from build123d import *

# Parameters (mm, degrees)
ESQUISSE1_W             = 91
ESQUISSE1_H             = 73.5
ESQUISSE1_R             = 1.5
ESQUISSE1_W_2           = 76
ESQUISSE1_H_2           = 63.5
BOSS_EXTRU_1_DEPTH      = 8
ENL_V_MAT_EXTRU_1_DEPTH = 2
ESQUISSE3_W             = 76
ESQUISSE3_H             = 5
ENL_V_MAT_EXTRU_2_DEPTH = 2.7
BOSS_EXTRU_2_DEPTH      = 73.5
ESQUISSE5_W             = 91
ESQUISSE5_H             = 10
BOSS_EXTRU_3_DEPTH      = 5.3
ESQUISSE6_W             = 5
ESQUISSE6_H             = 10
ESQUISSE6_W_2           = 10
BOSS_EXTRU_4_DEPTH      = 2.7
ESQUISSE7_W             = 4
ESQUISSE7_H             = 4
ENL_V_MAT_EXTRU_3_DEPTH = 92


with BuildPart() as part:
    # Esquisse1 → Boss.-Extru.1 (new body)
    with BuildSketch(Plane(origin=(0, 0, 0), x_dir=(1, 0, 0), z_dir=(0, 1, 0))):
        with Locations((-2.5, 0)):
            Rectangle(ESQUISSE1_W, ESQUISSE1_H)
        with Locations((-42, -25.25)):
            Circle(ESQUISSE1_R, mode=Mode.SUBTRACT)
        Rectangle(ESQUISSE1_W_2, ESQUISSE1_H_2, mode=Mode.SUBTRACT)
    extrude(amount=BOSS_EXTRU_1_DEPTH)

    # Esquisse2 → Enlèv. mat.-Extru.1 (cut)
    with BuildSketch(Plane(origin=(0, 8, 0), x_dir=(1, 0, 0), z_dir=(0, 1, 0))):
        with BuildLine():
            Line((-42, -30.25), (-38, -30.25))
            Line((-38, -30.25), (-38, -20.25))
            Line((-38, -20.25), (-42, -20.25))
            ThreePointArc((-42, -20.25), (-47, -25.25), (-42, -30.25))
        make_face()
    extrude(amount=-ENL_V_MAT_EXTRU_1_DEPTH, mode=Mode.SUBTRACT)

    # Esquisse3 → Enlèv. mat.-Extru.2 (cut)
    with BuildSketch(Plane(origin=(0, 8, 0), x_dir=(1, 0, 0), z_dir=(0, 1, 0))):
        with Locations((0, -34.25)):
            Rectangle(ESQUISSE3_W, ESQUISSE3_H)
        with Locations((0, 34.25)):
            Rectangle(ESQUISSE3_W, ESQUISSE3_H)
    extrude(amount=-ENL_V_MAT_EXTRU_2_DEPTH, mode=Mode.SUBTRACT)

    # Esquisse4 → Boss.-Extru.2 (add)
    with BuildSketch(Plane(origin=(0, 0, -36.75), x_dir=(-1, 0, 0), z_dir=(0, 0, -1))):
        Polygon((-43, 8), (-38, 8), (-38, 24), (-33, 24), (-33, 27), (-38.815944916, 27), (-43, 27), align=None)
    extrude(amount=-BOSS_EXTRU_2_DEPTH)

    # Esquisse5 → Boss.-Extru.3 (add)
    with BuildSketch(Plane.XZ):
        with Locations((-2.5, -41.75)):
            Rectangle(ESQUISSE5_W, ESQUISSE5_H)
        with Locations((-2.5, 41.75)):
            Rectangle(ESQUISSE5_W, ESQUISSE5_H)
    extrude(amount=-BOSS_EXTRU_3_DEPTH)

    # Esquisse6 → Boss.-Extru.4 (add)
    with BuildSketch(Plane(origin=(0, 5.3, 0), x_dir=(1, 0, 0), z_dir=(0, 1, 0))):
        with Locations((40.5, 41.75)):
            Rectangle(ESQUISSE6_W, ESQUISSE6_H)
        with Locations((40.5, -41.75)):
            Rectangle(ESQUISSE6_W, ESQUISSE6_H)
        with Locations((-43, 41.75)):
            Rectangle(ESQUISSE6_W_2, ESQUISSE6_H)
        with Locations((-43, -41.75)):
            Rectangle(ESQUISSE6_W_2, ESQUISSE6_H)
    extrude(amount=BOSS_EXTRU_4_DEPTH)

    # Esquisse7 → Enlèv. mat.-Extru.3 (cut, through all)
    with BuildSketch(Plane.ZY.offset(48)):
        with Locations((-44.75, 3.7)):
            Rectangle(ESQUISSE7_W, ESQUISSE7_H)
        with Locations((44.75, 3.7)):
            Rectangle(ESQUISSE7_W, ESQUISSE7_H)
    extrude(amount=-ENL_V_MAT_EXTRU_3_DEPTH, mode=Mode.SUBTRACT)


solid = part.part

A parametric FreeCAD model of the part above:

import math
import FreeCAD as App
import Part
import Sketcher

V = App.Vector
Q = App.Units.Quantity

doc = App.newDocument("Part")
body = doc.addObject("PartDesign::Body", "Body")

# Sketch on XZ plane
sketch1 = body.newObject("Sketcher::SketchObject", "Sketch")
sketch1.AttachmentSupport = (doc.getObject("XZ_Plane"), [""])
sketch1.MapMode = "FlatFace"
sketch1.addGeometry(Part.LineSegment(V(-48, -36.8, 0), V(-48, 36.8, 0)), False)
sketch1.addGeometry(Part.LineSegment(V(-48, 36.8, 0), V(43, 36.8, 0)), False)
sketch1.addGeometry(Part.LineSegment(V(43, 36.8, 0), V(43, -36.8, 0)), False)
sketch1.addGeometry(Part.LineSegment(V(43, -36.8, 0), V(-48, -36.8, 0)), False)
sketch1.addGeometry(Part.Circle(V(-42, 25.2, 0), V(0, 0, 1), 1.5), False)
sketch1.addGeometry(Part.LineSegment(V(38, 31.8, 0), V(-38, 31.8, 0)), False)
sketch1.addGeometry(Part.LineSegment(V(-38, 31.8, 0), V(-38, -31.8, 0)), False)
sketch1.addGeometry(Part.LineSegment(V(-38, -31.8, 0), V(38, -31.8, 0)), False)
sketch1.addGeometry(Part.LineSegment(V(38, -31.8, 0), V(38, 31.8, 0)), False)
sketch1.addConstraint(Sketcher.Constraint("Coincident", 0, 2, 1, 1))
sketch1.addConstraint(Sketcher.Constraint("Coincident", 1, 2, 2, 1))
sketch1.addConstraint(Sketcher.Constraint("Coincident", 2, 2, 3, 1))
sketch1.addConstraint(Sketcher.Constraint("Coincident", 3, 2, 0, 1))
sketch1.addConstraint(Sketcher.Constraint("Coincident", 5, 2, 6, 1))
sketch1.addConstraint(Sketcher.Constraint("Coincident", 6, 2, 7, 1))
sketch1.addConstraint(Sketcher.Constraint("Coincident", 7, 2, 8, 1))
sketch1.addConstraint(Sketcher.Constraint("Coincident", 8, 2, 5, 1))
sketch1.addConstraint(Sketcher.Constraint("Vertical", 0))
sketch1.addConstraint(Sketcher.Constraint("Horizontal", 1))
sketch1.addConstraint(Sketcher.Constraint("Vertical", 2))
sketch1.addConstraint(Sketcher.Constraint("Horizontal", 3))
sketch1.addConstraint(Sketcher.Constraint("Horizontal", 5))
sketch1.addConstraint(Sketcher.Constraint("Vertical", 6))
sketch1.addConstraint(Sketcher.Constraint("Horizontal", 7))
sketch1.addConstraint(Sketcher.Constraint("Vertical", 8))
sketch1.addConstraint(Sketcher.Constraint("Symmetric", 5, 2, 7, 2, -1, 1))
sketch1.addConstraint(Sketcher.Constraint("Diameter", 4, Q("3 mm")))
sketch1.addConstraint(Sketcher.Constraint("DistanceX", 1, 1, 1, 2, Q("91 mm")))
sketch1.addConstraint(Sketcher.Constraint("DistanceX", 5, 2, 5, 1, Q("76 mm")))
sketch1.addConstraint(Sketcher.Constraint("DistanceY", 0, 1, 0, 2, Q("73.5 mm")))
sketch1.addConstraint(Sketcher.Constraint("DistanceY", 6, 2, 6, 1, Q("63.5 mm")))
sketch1.addConstraint(Sketcher.Constraint("DistanceX", 4, 3, -1, 1, Q("42 mm")))
sketch1.addConstraint(Sketcher.Constraint("DistanceX", 0, 2, -1, 1, Q("48 mm")))
sketch1.addConstraint(Sketcher.Constraint("DistanceY", 2, 2, 4, 3, Q("62 mm")))
sketch1.addConstraint(Sketcher.Constraint("DistanceY", 5, 2, 0, 2, Q("5 mm")))
pad1 = body.newObject("PartDesign::Pad", "Pad")
pad1.Profile = sketch1
pad1.Length = 8
pad1.Reversed = True

# Sketch on XZ plane
sketch2 = body.newObject("Sketcher::SketchObject", "Sketch001")
sketch2.AttachmentSupport = (doc.getObject("XZ_Plane"), [""])
sketch2.MapMode = "FlatFace"
sketch2.AttachmentOffset = App.Placement(V(0, 0, -8), App.Rotation())
sketch2.addGeometry(Part.LineSegment(V(-42, 30.2, 0), V(-38, 30.2, 0)), False)
sketch2.addGeometry(Part.LineSegment(V(-38, 30.2, 0), V(-38, 20.2, 0)), False)
sketch2.addGeometry(Part.LineSegment(V(-38, 20.2, 0), V(-42, 20.2, 0)), False)
sketch2.addGeometry(Part.ArcOfCircle(Part.Circle(V(-42, 25.2, 0), V(0, 0, 1), 5), math.radians(90), math.radians(270)), False)
sketch2.addConstraint(Sketcher.Constraint("Coincident", 0, 2, 1, 1))
sketch2.addConstraint(Sketcher.Constraint("Coincident", 1, 2, 2, 1))
sketch2.addConstraint(Sketcher.Constraint("Tangent", 2, 2, 3, 2))
sketch2.addConstraint(Sketcher.Constraint("Tangent", 3, 1, 0, 1))
sketch2.addConstraint(Sketcher.Constraint("Horizontal", 0))
sketch2.addConstraint(Sketcher.Constraint("Vertical", 1))
sketch2.addConstraint(Sketcher.Constraint("Horizontal", 2))
sketch2.addConstraint(Sketcher.Constraint("Radius", 3, Q("5 mm")))
sketch2.addConstraint(Sketcher.Constraint("DistanceX", 0, 1, 0, 2, Q("4 mm")))
sketch2.addConstraint(Sketcher.Constraint("DistanceX", 3, 3, -1, 1, Q("42 mm")))
sketch2.addConstraint(Sketcher.Constraint("DistanceY", -1, 1, 3, 3, Q("25.25 mm")))
pocket1 = body.newObject("PartDesign::Pocket", "Pocket")
pocket1.Profile = sketch2
pocket1.Length = 2
pocket1.Reversed = True

# Sketch on XZ plane
sketch3 = body.newObject("Sketcher::SketchObject", "Sketch002")
sketch3.AttachmentSupport = (doc.getObject("XZ_Plane"), [""])
sketch3.MapMode = "FlatFace"
sketch3.AttachmentOffset = App.Placement(V(0, 0, -8), App.Rotation())
sketch3.addGeometry(Part.LineSegment(V(-38, 32, 0), V(-38, 37, 0)), False)
sketch3.addGeometry(Part.LineSegment(V(-38, 37, 0), V(38, 37, 0)), False)
sketch3.addGeometry(Part.LineSegment(V(38, 37, 0), V(38, 32, 0)), False)
sketch3.addGeometry(Part.LineSegment(V(38, 32, 0), V(-38, 32, 0)), False)
sketch3.addGeometry(Part.LineSegment(V(-38, -37, 0), V(-38, -32, 0)), False)
sketch3.addGeometry(Part.LineSegment(V(-38, -32, 0), V(38, -32, 0)), False)
sketch3.addGeometry(Part.LineSegment(V(38, -32, 0), V(38, -37, 0)), False)
sketch3.addGeometry(Part.LineSegment(V(38, -37, 0), V(-38, -37, 0)), False)
sketch3.addConstraint(Sketcher.Constraint("Coincident", 0, 2, 1, 1))
sketch3.addConstraint(Sketcher.Constraint("Coincident", 1, 2, 2, 1))
sketch3.addConstraint(Sketcher.Constraint("Coincident", 2, 2, 3, 1))
sketch3.addConstraint(Sketcher.Constraint("Coincident", 3, 2, 0, 1))
sketch3.addConstraint(Sketcher.Constraint("Coincident", 4, 2, 5, 1))
sketch3.addConstraint(Sketcher.Constraint("Coincident", 5, 2, 6, 1))
sketch3.addConstraint(Sketcher.Constraint("Coincident", 6, 2, 7, 1))
sketch3.addConstraint(Sketcher.Constraint("Coincident", 7, 2, 4, 1))
sketch3.addConstraint(Sketcher.Constraint("Vertical", 0))
sketch3.addConstraint(Sketcher.Constraint("Horizontal", 1))
sketch3.addConstraint(Sketcher.Constraint("Vertical", 2))
sketch3.addConstraint(Sketcher.Constraint("Horizontal", 3))
sketch3.addConstraint(Sketcher.Constraint("Vertical", 4))
sketch3.addConstraint(Sketcher.Constraint("Horizontal", 5))
sketch3.addConstraint(Sketcher.Constraint("Vertical", 6))
sketch3.addConstraint(Sketcher.Constraint("Horizontal", 7))
sketch3.addConstraint(Sketcher.Constraint("Symmetric", 2, 2, 4, 2, -1, 1))
sketch3.addConstraint(Sketcher.Constraint("Symmetric", 0, 2, 6, 2, -1, 1))
sketch3.addConstraint(Sketcher.Constraint("Vertical", 3, 2, 4, 2))
sketch3.addConstraint(Sketcher.Constraint("DistanceX", 1, 1, 1, 2, Q("76 mm")))
sketch3.addConstraint(Sketcher.Constraint("DistanceY", 0, 1, 0, 2, Q("5 mm")))
sketch3.addConstraint(Sketcher.Constraint("DistanceY", 4, 2, 3, 2, Q("63.5 mm")))
pocket2 = body.newObject("PartDesign::Pocket", "Pocket001")
pocket2.Profile = sketch3
pocket2.Length = 2.7
pocket2.Reversed = True

# Sketch on XY plane
sketch4 = body.newObject("Sketcher::SketchObject", "Sketch003")
sketch4.AttachmentSupport = (doc.getObject("XY_Plane"), [""])
sketch4.MapMode = "FlatFace"
sketch4.AttachmentOffset = App.Placement(V(0, 0, -36.75), App.Rotation())
sketch4.addGeometry(Part.LineSegment(V(43, 8, 0), V(38, 8, 0)), False)
sketch4.addGeometry(Part.LineSegment(V(38, 8, 0), V(38, 24, 0)), False)
sketch4.addGeometry(Part.LineSegment(V(38, 24, 0), V(33, 24, 0)), False)
sketch4.addGeometry(Part.LineSegment(V(33, 24, 0), V(33, 27, 0)), False)
sketch4.addGeometry(Part.LineSegment(V(33, 27, 0), V(43, 27, 0)), False)
sketch4.addGeometry(Part.LineSegment(V(43, 27, 0), V(43, 8, 0)), False)
sketch4.addConstraint(Sketcher.Constraint("Coincident", 0, 2, 1, 1))
sketch4.addConstraint(Sketcher.Constraint("Coincident", 1, 2, 2, 1))
sketch4.addConstraint(Sketcher.Constraint("Coincident", 2, 2, 3, 1))
sketch4.addConstraint(Sketcher.Constraint("Coincident", 3, 2, 4, 1))
sketch4.addConstraint(Sketcher.Constraint("Coincident", 4, 2, 5, 1))
sketch4.addConstraint(Sketcher.Constraint("Coincident", 5, 2, 0, 1))
sketch4.addConstraint(Sketcher.Constraint("Horizontal", 0))
sketch4.addConstraint(Sketcher.Constraint("Vertical", 1))
sketch4.addConstraint(Sketcher.Constraint("Horizontal", 2))
sketch4.addConstraint(Sketcher.Constraint("Vertical", 3))
sketch4.addConstraint(Sketcher.Constraint("Horizontal", 4))
sketch4.addConstraint(Sketcher.Constraint("Vertical", 5))
sketch4.addConstraint(Sketcher.Constraint("Equal", 0, 2))
sketch4.addConstraint(Sketcher.Constraint("DistanceX", 0, 2, 0, 1, Q("5 mm")))
sketch4.addConstraint(Sketcher.Constraint("DistanceY", 1, 1, 1, 2, Q("16 mm")))
sketch4.addConstraint(Sketcher.Constraint("DistanceY", 3, 1, 3, 2, Q("3 mm")))
sketch4.addConstraint(Sketcher.Constraint("DistanceX", -1, 1, 0, 2, Q("38 mm")))
sketch4.addConstraint(Sketcher.Constraint("DistanceY", -1, 1, 0, 2, Q("8 mm")))
pad2 = body.newObject("PartDesign::Pad", "Pad001")
pad2.Profile = sketch4
pad2.Length = 73.5

# Sketch on XZ plane
sketch5 = body.newObject("Sketcher::SketchObject", "Sketch004")
sketch5.AttachmentSupport = (doc.getObject("XZ_Plane"), [""])
sketch5.MapMode = "FlatFace"
sketch5.addGeometry(Part.LineSegment(V(-48, -37, 0), V(-48, -47, 0)), False)
sketch5.addGeometry(Part.LineSegment(V(-48, -47, 0), V(43, -47, 0)), False)
sketch5.addGeometry(Part.LineSegment(V(43, -47, 0), V(43, -37, 0)), False)
sketch5.addGeometry(Part.LineSegment(V(43, -37, 0), V(-48, -37, 0)), False)
sketch5.addGeometry(Part.LineSegment(V(-48, 47, 0), V(-48, 37, 0)), False)
sketch5.addGeometry(Part.LineSegment(V(-48, 37, 0), V(43, 37, 0)), False)
sketch5.addGeometry(Part.LineSegment(V(43, 37, 0), V(43, 47, 0)), False)
sketch5.addGeometry(Part.LineSegment(V(43, 47, 0), V(-48, 47, 0)), False)
sketch5.addConstraint(Sketcher.Constraint("Coincident", 0, 2, 1, 1))
sketch5.addConstraint(Sketcher.Constraint("Coincident", 1, 2, 2, 1))
sketch5.addConstraint(Sketcher.Constraint("Coincident", 2, 2, 3, 1))
sketch5.addConstraint(Sketcher.Constraint("Coincident", 3, 2, 0, 1))
sketch5.addConstraint(Sketcher.Constraint("Coincident", 4, 2, 5, 1))
sketch5.addConstraint(Sketcher.Constraint("Coincident", 5, 2, 6, 1))
sketch5.addConstraint(Sketcher.Constraint("Coincident", 6, 2, 7, 1))
sketch5.addConstraint(Sketcher.Constraint("Coincident", 7, 2, 4, 1))
sketch5.addConstraint(Sketcher.Constraint("Vertical", 0))
sketch5.addConstraint(Sketcher.Constraint("Horizontal", 1))
sketch5.addConstraint(Sketcher.Constraint("Vertical", 2))
sketch5.addConstraint(Sketcher.Constraint("Horizontal", 3))
sketch5.addConstraint(Sketcher.Constraint("Vertical", 4))
sketch5.addConstraint(Sketcher.Constraint("Horizontal", 5))
sketch5.addConstraint(Sketcher.Constraint("Vertical", 6))
sketch5.addConstraint(Sketcher.Constraint("Horizontal", 7))
sketch5.addConstraint(Sketcher.Constraint("Symmetric", 3, 2, 4, 2, -1))
sketch5.addConstraint(Sketcher.Constraint("Symmetric", 1, 2, 6, 2, -1))
sketch5.addConstraint(Sketcher.Constraint("DistanceX", 1, 1, 1, 2, Q("91 mm")))
sketch5.addConstraint(Sketcher.Constraint("DistanceY", 0, 2, 0, 1, Q("10 mm")))
sketch5.addConstraint(Sketcher.Constraint("DistanceX", 0, 2, -1, 1, Q("48 mm")))
sketch5.addConstraint(Sketcher.Constraint("DistanceY", 3, 2, 4, 2, Q("73.5 mm")))
pad3 = body.newObject("PartDesign::Pad", "Pad002")
pad3.Profile = sketch5
pad3.Length = 5.3
pad3.Reversed = True

# Sketch on XZ plane
sketch6 = body.newObject("Sketcher::SketchObject", "Sketch005")
sketch6.AttachmentSupport = (doc.getObject("XZ_Plane"), [""])
sketch6.MapMode = "FlatFace"
sketch6.AttachmentOffset = App.Placement(V(0, 0, -5.3), App.Rotation())
sketch6.addGeometry(Part.LineSegment(V(38, -47, 0), V(38, -37, 0)), False)
sketch6.addGeometry(Part.LineSegment(V(38, -37, 0), V(43, -37, 0)), False)
sketch6.addGeometry(Part.LineSegment(V(43, -37, 0), V(43, -47, 0)), False)
sketch6.addGeometry(Part.LineSegment(V(43, -47, 0), V(38, -47, 0)), False)
sketch6.addGeometry(Part.LineSegment(V(38, 37, 0), V(38, 47, 0)), False)
sketch6.addGeometry(Part.LineSegment(V(38, 47, 0), V(43, 47, 0)), False)
sketch6.addGeometry(Part.LineSegment(V(43, 47, 0), V(43, 37, 0)), False)
sketch6.addGeometry(Part.LineSegment(V(43, 37, 0), V(38, 37, 0)), False)
sketch6.addGeometry(Part.LineSegment(V(-48, -47, 0), V(-48, -37, 0)), False)
sketch6.addGeometry(Part.LineSegment(V(-48, -37, 0), V(-38, -37, 0)), False)
sketch6.addGeometry(Part.LineSegment(V(-38, -37, 0), V(-38, -47, 0)), False)
sketch6.addGeometry(Part.LineSegment(V(-38, -47, 0), V(-48, -47, 0)), False)
sketch6.addGeometry(Part.LineSegment(V(-48, 37, 0), V(-48, 47, 0)), False)
sketch6.addGeometry(Part.LineSegment(V(-48, 47, 0), V(-38, 47, 0)), False)
sketch6.addGeometry(Part.LineSegment(V(-38, 47, 0), V(-38, 37, 0)), False)
sketch6.addGeometry(Part.LineSegment(V(-38, 37, 0), V(-48, 37, 0)), False)
sketch6.addConstraint(Sketcher.Constraint("Coincident", 0, 2, 1, 1))
sketch6.addConstraint(Sketcher.Constraint("Coincident", 1, 2, 2, 1))
sketch6.addConstraint(Sketcher.Constraint("Coincident", 2, 2, 3, 1))
sketch6.addConstraint(Sketcher.Constraint("Coincident", 3, 2, 0, 1))
sketch6.addConstraint(Sketcher.Constraint("Coincident", 4, 2, 5, 1))
sketch6.addConstraint(Sketcher.Constraint("Coincident", 5, 2, 6, 1))
sketch6.addConstraint(Sketcher.Constraint("Coincident", 6, 2, 7, 1))
sketch6.addConstraint(Sketcher.Constraint("Coincident", 7, 2, 4, 1))
sketch6.addConstraint(Sketcher.Constraint("Coincident", 8, 2, 9, 1))
sketch6.addConstraint(Sketcher.Constraint("Coincident", 9, 2, 10, 1))
sketch6.addConstraint(Sketcher.Constraint("Coincident", 10, 2, 11, 1))
sketch6.addConstraint(Sketcher.Constraint("Coincident", 11, 2, 8, 1))
sketch6.addConstraint(Sketcher.Constraint("Coincident", 12, 2, 13, 1))
sketch6.addConstraint(Sketcher.Constraint("Coincident", 13, 2, 14, 1))
sketch6.addConstraint(Sketcher.Constraint("Coincident", 14, 2, 15, 1))
sketch6.addConstraint(Sketcher.Constraint("Coincident", 15, 2, 12, 1))
sketch6.addConstraint(Sketcher.Constraint("Vertical", 0))
sketch6.addConstraint(Sketcher.Constraint("Horizontal", 1))
sketch6.addConstraint(Sketcher.Constraint("Vertical", 2))
sketch6.addConstraint(Sketcher.Constraint("Horizontal", 3))
sketch6.addConstraint(Sketcher.Constraint("Vertical", 4))
sketch6.addConstraint(Sketcher.Constraint("Horizontal", 5))
sketch6.addConstraint(Sketcher.Constraint("Vertical", 6))
sketch6.addConstraint(Sketcher.Constraint("Horizontal", 7))
sketch6.addConstraint(Sketcher.Constraint("Vertical", 8))
sketch6.addConstraint(Sketcher.Constraint("Horizontal", 9))
sketch6.addConstraint(Sketcher.Constraint("Vertical", 10))
sketch6.addConstraint(Sketcher.Constraint("Horizontal", 11))
sketch6.addConstraint(Sketcher.Constraint("Vertical", 12))
sketch6.addConstraint(Sketcher.Constraint("Horizontal", 13))
sketch6.addConstraint(Sketcher.Constraint("Vertical", 14))
sketch6.addConstraint(Sketcher.Constraint("Horizontal", 15))
sketch6.addConstraint(Sketcher.Constraint("Symmetric", 7, 2, 9, 2, -1, 1))
sketch6.addConstraint(Sketcher.Constraint("Symmetric", 3, 2, 13, 2, -1, 1))
sketch6.addConstraint(Sketcher.Constraint("Symmetric", 0, 2, 9, 2, -2))
sketch6.addConstraint(Sketcher.Constraint("Symmetric", 2, 2, 5, 2, -1))
sketch6.addConstraint(Sketcher.Constraint("Symmetric", 11, 2, 12, 2, -1))
sketch6.addConstraint(Sketcher.Constraint("Horizontal", 7, 2, 14, 2))
sketch6.addConstraint(Sketcher.Constraint("Equal", 15, 0))
sketch6.addConstraint(Sketcher.Constraint("DistanceX", 1, 1, 1, 2, Q("5 mm")))
sketch6.addConstraint(Sketcher.Constraint("DistanceX", 9, 1, 9, 2, Q("10 mm")))
sketch6.addConstraint(Sketcher.Constraint("DistanceX", -1, 1, 0, 2, Q("38 mm")))
sketch6.addConstraint(Sketcher.Constraint("DistanceY", 0, 2, 4, 2, Q("83.5 mm")))
pad4 = body.newObject("PartDesign::Pad", "Pad003")
pad4.Profile = sketch6
pad4.Length = 2.7
pad4.Reversed = True

# Sketch on YZ plane
sketch7 = body.newObject("Sketcher::SketchObject", "Sketch006")
sketch7.AttachmentSupport = (doc.getObject("YZ_Plane"), [""])
sketch7.MapMode = "FlatFace"
sketch7.AttachmentOffset = App.Placement(V(0, 0, -48), App.Rotation())
sketch7.addGeometry(Part.LineSegment(V(5.7, -46.8, 0), V(1.7, -46.8, 0)), False)
sketch7.addGeometry(Part.LineSegment(V(1.7, -46.8, 0), V(1.7, -42.8, 0)), False)
sketch7.addGeometry(Part.LineSegment(V(1.7, -42.8, 0), V(5.7, -42.8, 0)), False)
sketch7.addGeometry(Part.LineSegment(V(5.7, -42.8, 0), V(5.7, -46.8, 0)), False)
sketch7.addGeometry(Part.LineSegment(V(5.7, 42.8, 0), V(1.7, 42.8, 0)), False)
sketch7.addGeometry(Part.LineSegment(V(1.7, 42.8, 0), V(1.7, 46.8, 0)), False)
sketch7.addGeometry(Part.LineSegment(V(1.7, 46.8, 0), V(5.7, 46.8, 0)), False)
sketch7.addGeometry(Part.LineSegment(V(5.7, 46.8, 0), V(5.7, 42.8, 0)), False)
sketch7.addConstraint(Sketcher.Constraint("Coincident", 0, 2, 1, 1))
sketch7.addConstraint(Sketcher.Constraint("Coincident", 1, 2, 2, 1))
sketch7.addConstraint(Sketcher.Constraint("Coincident", 2, 2, 3, 1))
sketch7.addConstraint(Sketcher.Constraint("Coincident", 3, 2, 0, 1))
sketch7.addConstraint(Sketcher.Constraint("Coincident", 4, 2, 5, 1))
sketch7.addConstraint(Sketcher.Constraint("Coincident", 5, 2, 6, 1))
sketch7.addConstraint(Sketcher.Constraint("Coincident", 6, 2, 7, 1))
sketch7.addConstraint(Sketcher.Constraint("Coincident", 7, 2, 4, 1))
sketch7.addConstraint(Sketcher.Constraint("Horizontal", 0))
sketch7.addConstraint(Sketcher.Constraint("Vertical", 1))
sketch7.addConstraint(Sketcher.Constraint("Horizontal", 2))
sketch7.addConstraint(Sketcher.Constraint("Vertical", 3))
sketch7.addConstraint(Sketcher.Constraint("Horizontal", 4))
sketch7.addConstraint(Sketcher.Constraint("Vertical", 5))
sketch7.addConstraint(Sketcher.Constraint("Horizontal", 6))
sketch7.addConstraint(Sketcher.Constraint("Vertical", 7))
sketch7.addConstraint(Sketcher.Constraint("Symmetric", 1, 2, 4, 2, -1))
sketch7.addConstraint(Sketcher.Constraint("Symmetric", 3, 2, 6, 2, -1))
sketch7.addConstraint(Sketcher.Constraint("Equal", 6, 1))
sketch7.addConstraint(Sketcher.Constraint("DistanceX", 0, 2, 0, 1, Q("4 mm")))
sketch7.addConstraint(Sketcher.Constraint("DistanceX", -1, 1, 0, 2, Q("1.7 mm")))
sketch7.addConstraint(Sketcher.Constraint("DistanceY", 1, 2, 4, 2, Q("85.5 mm")))
pocket3 = body.newObject("PartDesign::Pocket", "Pocket002")
pocket3.Profile = sketch7
pocket3.Type = "ThroughAll"
pocket3.Reversed = True

doc.recompute()
